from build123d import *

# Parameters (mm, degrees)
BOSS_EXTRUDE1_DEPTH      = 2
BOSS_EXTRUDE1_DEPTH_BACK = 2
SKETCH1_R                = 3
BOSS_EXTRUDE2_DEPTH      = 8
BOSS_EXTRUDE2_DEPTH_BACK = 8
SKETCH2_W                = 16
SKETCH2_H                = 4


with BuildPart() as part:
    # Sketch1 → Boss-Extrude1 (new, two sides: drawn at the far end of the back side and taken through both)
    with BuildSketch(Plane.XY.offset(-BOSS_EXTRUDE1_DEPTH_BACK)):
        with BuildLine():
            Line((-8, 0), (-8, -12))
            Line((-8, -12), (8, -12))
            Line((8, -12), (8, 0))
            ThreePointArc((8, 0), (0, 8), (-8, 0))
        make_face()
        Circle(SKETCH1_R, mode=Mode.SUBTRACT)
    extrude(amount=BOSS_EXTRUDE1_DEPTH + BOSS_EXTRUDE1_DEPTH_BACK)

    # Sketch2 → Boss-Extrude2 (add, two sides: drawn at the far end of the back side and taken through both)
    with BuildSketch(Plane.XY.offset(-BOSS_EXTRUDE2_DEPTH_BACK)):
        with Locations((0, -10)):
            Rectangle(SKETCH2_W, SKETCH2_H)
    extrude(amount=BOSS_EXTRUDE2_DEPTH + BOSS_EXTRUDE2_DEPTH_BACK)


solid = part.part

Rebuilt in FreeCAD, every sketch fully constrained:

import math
import FreeCAD as App
import Part
import Sketcher
from FreeCAD import Vector

doc = App.newDocument("Part")
params = doc.addObject("Spreadsheet::Sheet", "Params")
for row, (alias, value) in enumerate([
    ("sketch1_diameter", "6 mm"),
    ("sketch1_radius", "8 mm"),
    ("sketch1_height", "12 mm"),
    ("pad1_length", "2 mm"),
    ("pad1_length2", "2 mm"),
    ("sketch2_width", "16 mm"),
    ("sketch2_height", "4 mm"),
    ("pad2_length", "8 mm"),
    ("pad2_length2", "8 mm"),
], start=1):
    params.set(f"A{row}", alias)
    params.set(f"B{row}", "=" + value)
    params.setAlias(f"B{row}", alias)

body = doc.addObject("PartDesign::Body", "Body")

# Sketch on XY plane
sketch1 = body.newObject("Sketcher::SketchObject", "Sketch")
sketch1.AttachmentSupport = (doc.getObject("XY_Plane"), [""])
sketch1.MapMode = "FlatFace"
sketch1.addGeometry(Part.LineSegment(Vector(-8, 0, 0), Vector(-8, -12, 0)), False)
sketch1.addGeometry(Part.LineSegment(Vector(-8, -12, 0), Vector(8, -12, 0)), False)
sketch1.addGeometry(Part.LineSegment(Vector(8, -12, 0), Vector(8, 0, 0)), False)
sketch1.addGeometry(Part.ArcOfCircle(Part.Circle(Vector(0, 0, 0), Vector(0, 0, 1), 8), math.radians(0), math.radians(180)), False)
sketch1.addGeometry(Part.Circle(Vector(0, 0, 0), Vector(0, 0, 1), 3), False)
sketch1.addConstraint(Sketcher.Constraint("Coincident", 0, 2, 1, 1))
sketch1.addConstraint(Sketcher.Constraint("Coincident", 1, 2, 2, 1))
sketch1.addConstraint(Sketcher.Constraint("Tangent", 2, 2, 3, 1))
sketch1.addConstraint(Sketcher.Constraint("Tangent", 3, 2, 0, 1))
sketch1.addConstraint(Sketcher.Constraint("Vertical", 0))
sketch1.addConstraint(Sketcher.Constraint("Horizontal", 1))
sketch1.addConstraint(Sketcher.Constraint("Vertical", 2))
sketch1.addConstraint(Sketcher.Constraint("Coincident", 3, 3, -1, 1))
sketch1.addConstraint(Sketcher.Constraint("Coincident", 4, 3, -1, 1))
sketch1.addConstraint(Sketcher.Constraint("Diameter", 4, 6.0))
sketch1.addConstraint(Sketcher.Constraint("Radius", 3, 8.0))
sketch1.addConstraint(Sketcher.Constraint("DistanceY", 0, 2, 0, 1, 12.0))
sketch1.setExpression("Constraints[9]", "Params.sketch1_diameter")
sketch1.setExpression("Constraints[10]", "Params.sketch1_radius")
sketch1.setExpression("Constraints[11]", "Params.sketch1_height")
pad1 = body.newObject("PartDesign::Pad", "Pad")
pad1.Profile = sketch1
pad1.Type = "TwoLengths"
pad1.setExpression("Length", "Params.pad1_length")
pad1.setExpression("Length2", "Params.pad1_length2")

# Sketch on XY plane
sketch2 = body.newObject("Sketcher::SketchObject", "Sketch001")
sketch2.AttachmentSupport = (doc.getObject("XY_Plane"), [""])
sketch2.MapMode = "FlatFace"
sketch2.addGeometry(Part.LineSegment(Vector(-8, -8, 0), Vector(-8, -12, 0)), False)
sketch2.addGeometry(Part.LineSegment(Vector(-8, -12, 0), Vector(8, -12, 0)), False)
sketch2.addGeometry(Part.LineSegment(Vector(8, -12, 0), Vector(8, -8, 0)), False)
sketch2.addGeometry(Part.LineSegment(Vector(8, -8, 0), Vector(-8, -8, 0)), False)
sketch2.addConstraint(Sketcher.Constraint("Coincident", 0, 2, 1, 1))
sketch2.addConstraint(Sketcher.Constraint("Coincident", 1, 2, 2, 1))
sketch2.addConstraint(Sketcher.Constraint("Coincident", 2, 2, 3, 1))
sketch2.addConstraint(Sketcher.Constraint("Coincident", 3, 2, 0, 1))
sketch2.addConstraint(Sketcher.Constraint("Vertical", 0))
sketch2.addConstraint(Sketcher.Constraint("Horizontal", 1))
sketch2.addConstraint(Sketcher.Constraint("Vertical", 2))
sketch2.addConstraint(Sketcher.Constraint("Horizontal", 3))
sketch2.addConstraint(Sketcher.Constraint("DistanceX", 1, 1, 1, 2, 16.0))
sketch2.addConstraint(Sketcher.Constraint("DistanceY", 0, 2, 0, 1, 4.0))
sketch2.addConstraint(Sketcher.Constraint("DistanceX", 0, 2, -1, 1, 8.0))
sketch2.addConstraint(Sketcher.Constraint("DistanceY", 0, 2, -1, 1, 12.0))
sketch2.setExpression("Constraints[8]", "Params.sketch2_width")
sketch2.setExpression("Constraints[9]", "Params.sketch2_height")
pad2 = body.newObject("PartDesign::Pad", "Pad001")
pad2.Profile = sketch2
pad2.Type = "TwoLengths"
pad2.setExpression("Length", "Params.pad2_length")
pad2.setExpression("Length2", "Params.pad2_length2")

doc.recompute()
